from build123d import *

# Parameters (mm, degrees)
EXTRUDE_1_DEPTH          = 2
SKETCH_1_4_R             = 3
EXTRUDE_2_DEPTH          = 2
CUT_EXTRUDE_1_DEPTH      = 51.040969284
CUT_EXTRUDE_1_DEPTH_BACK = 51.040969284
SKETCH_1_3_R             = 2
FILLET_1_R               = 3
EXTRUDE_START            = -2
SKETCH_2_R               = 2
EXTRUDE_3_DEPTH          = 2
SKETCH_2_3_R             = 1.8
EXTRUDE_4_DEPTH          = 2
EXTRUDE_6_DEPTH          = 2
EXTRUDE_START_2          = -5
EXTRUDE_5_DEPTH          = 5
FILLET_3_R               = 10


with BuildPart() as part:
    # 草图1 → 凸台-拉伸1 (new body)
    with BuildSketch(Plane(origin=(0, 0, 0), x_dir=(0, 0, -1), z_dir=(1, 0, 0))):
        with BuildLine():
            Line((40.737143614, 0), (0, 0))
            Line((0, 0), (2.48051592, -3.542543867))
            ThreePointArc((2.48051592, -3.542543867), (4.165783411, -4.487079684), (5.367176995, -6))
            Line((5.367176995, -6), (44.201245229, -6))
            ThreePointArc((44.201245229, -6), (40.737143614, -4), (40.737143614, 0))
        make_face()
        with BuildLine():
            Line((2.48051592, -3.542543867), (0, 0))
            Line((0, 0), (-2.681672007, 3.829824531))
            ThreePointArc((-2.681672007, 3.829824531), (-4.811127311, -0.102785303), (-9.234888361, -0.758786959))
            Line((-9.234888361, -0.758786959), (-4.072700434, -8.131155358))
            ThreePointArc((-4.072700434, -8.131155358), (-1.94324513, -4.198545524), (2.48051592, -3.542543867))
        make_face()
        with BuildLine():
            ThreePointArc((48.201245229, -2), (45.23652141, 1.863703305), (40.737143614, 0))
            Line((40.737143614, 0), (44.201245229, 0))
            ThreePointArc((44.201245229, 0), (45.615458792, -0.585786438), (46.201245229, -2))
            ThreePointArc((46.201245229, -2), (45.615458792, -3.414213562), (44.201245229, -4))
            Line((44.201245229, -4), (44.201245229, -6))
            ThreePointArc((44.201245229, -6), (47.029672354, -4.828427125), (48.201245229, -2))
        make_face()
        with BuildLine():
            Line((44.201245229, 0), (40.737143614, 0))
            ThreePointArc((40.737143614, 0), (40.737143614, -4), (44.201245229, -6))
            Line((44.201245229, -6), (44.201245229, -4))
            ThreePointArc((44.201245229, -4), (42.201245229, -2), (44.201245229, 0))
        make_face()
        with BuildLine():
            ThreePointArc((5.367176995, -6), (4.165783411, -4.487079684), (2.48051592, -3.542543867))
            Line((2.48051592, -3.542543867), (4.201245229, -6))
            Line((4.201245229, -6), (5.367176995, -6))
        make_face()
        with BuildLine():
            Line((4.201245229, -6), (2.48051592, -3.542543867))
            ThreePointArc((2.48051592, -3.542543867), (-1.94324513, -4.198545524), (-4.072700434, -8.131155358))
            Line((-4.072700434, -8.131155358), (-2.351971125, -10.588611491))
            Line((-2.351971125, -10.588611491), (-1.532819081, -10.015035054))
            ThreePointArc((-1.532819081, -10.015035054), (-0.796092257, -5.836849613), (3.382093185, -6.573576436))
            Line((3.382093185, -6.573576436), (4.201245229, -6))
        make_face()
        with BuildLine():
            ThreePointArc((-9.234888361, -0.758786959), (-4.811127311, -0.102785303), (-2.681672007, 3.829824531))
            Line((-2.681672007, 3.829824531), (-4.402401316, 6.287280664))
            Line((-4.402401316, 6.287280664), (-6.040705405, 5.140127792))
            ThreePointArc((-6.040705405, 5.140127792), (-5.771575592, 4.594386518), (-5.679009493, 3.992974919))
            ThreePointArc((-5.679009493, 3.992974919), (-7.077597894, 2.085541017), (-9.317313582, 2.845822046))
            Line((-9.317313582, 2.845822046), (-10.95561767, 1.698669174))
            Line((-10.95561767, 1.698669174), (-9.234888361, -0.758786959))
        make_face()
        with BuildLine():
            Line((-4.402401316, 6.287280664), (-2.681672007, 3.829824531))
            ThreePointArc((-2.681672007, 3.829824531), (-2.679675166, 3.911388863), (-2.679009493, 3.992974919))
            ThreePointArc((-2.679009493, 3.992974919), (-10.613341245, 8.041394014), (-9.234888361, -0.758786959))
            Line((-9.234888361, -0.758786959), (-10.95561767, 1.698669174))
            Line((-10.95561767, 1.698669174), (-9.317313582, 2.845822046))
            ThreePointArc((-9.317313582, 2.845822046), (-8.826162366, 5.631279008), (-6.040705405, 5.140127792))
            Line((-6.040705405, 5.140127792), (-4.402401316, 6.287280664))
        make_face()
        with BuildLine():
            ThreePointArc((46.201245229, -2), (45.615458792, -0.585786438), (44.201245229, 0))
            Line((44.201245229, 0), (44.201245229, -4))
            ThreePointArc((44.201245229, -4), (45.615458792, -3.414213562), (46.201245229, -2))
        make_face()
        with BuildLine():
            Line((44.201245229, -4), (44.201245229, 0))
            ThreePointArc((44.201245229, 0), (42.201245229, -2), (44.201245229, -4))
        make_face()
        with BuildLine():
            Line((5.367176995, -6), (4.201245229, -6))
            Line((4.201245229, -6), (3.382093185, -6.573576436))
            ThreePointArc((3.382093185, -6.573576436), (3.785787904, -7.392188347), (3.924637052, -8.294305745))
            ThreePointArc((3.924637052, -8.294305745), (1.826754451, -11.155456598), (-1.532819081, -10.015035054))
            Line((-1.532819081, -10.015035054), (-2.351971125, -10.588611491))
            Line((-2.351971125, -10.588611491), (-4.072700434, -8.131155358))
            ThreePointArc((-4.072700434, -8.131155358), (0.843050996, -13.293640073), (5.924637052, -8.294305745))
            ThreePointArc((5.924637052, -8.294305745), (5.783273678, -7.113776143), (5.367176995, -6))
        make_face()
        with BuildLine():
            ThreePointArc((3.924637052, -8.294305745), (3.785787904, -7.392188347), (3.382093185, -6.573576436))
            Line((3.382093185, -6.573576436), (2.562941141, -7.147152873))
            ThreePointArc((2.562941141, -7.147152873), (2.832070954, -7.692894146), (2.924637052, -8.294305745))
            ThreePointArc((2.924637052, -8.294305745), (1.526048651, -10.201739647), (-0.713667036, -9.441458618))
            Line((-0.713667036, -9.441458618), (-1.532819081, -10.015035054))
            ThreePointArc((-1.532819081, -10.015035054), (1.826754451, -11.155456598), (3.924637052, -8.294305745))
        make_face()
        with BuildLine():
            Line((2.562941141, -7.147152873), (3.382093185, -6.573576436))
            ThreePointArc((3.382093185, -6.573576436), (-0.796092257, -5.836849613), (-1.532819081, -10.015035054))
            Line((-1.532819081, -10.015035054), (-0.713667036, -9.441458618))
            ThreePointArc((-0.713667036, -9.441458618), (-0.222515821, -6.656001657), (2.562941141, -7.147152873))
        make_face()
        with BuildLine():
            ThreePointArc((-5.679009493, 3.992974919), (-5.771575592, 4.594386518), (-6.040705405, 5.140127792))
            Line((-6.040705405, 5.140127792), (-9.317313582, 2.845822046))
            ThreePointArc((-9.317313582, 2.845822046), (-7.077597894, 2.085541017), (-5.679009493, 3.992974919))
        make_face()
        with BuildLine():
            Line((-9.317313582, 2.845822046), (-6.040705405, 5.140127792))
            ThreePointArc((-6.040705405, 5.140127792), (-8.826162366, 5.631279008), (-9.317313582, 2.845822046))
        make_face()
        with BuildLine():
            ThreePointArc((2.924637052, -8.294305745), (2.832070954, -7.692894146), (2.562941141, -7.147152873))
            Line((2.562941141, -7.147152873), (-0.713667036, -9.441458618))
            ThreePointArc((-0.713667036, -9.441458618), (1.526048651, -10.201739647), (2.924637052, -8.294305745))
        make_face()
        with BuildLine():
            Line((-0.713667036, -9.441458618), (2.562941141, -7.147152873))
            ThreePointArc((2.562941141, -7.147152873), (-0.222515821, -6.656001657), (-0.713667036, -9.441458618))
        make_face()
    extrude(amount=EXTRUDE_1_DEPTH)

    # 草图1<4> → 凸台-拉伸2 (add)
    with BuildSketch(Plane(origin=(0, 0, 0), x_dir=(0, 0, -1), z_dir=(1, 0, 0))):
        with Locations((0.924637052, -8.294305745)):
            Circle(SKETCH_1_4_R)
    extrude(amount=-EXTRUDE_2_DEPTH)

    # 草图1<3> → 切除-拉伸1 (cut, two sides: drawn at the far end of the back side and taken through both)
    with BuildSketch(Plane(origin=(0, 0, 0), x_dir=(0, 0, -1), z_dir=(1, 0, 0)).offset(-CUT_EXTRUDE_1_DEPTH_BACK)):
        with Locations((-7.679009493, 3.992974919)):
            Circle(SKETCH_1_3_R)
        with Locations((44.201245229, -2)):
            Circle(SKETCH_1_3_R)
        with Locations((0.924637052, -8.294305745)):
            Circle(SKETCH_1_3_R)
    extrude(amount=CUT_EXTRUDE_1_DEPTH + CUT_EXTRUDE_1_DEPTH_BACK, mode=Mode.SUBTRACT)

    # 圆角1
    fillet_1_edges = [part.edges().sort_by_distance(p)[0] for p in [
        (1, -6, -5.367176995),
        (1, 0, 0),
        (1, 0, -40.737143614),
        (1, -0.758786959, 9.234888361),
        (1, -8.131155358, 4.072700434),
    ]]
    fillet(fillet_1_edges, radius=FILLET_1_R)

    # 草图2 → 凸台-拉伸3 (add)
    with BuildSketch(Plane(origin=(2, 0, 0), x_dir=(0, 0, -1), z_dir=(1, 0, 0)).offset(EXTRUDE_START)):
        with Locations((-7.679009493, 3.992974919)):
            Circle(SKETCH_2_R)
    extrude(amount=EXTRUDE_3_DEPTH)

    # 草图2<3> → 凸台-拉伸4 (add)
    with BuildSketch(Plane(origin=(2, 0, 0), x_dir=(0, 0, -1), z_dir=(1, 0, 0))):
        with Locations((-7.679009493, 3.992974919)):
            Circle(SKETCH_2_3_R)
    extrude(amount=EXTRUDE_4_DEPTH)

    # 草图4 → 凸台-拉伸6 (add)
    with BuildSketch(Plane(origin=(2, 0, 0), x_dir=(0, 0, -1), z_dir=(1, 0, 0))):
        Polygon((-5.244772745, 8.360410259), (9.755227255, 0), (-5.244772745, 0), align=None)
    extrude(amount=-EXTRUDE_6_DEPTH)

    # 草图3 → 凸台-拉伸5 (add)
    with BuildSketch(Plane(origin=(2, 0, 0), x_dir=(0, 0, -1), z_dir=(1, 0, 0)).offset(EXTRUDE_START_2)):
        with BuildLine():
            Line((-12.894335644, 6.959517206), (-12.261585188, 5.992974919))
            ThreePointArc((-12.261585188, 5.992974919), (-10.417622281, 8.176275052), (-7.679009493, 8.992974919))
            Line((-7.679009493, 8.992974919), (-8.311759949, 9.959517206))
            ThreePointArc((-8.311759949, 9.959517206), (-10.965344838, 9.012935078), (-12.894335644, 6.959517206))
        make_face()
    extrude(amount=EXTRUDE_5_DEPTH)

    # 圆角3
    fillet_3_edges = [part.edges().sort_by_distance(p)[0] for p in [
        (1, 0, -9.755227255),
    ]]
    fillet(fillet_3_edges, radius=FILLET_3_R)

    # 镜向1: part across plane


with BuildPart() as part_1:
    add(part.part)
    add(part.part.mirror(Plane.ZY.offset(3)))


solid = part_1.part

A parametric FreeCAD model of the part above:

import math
import FreeCAD as App
import Part
import Sketcher
from FreeCAD import Vector
Q = App.Units.Quantity


def edges_at(feature, points):
    """Names of the edges that pass closest to the given points."""
    edges = feature.Shape.Edges
    near = lambda p: min(range(len(edges)), key=lambda i: edges[i].distToShape(Part.Vertex(*p))[0])
    return sorted({f"Edge{near(p) + 1}" for p in points})


def add_polygon(sketch, points):
    """Adds a closed chain of lines whose ends are joined by coincident constraints."""
    first, n = sketch.GeometryCount, len(points)
    for a, b in zip(points, points[1:] + points[:1]):
        sketch.addGeometry(Part.LineSegment(App.Vector(*a, 0), App.Vector(*b, 0)), False)
    for i in range(n):
        sketch.addConstraint(Sketcher.Constraint("Coincident", first + i, 2, first + (i + 1) % n, 1))

doc = App.newDocument("Part")
params = doc.addObject("Spreadsheet::Sheet", "Params")
for row, (alias, value) in enumerate([
    ("sketch1_radius", "5.000001 mm"),
    ("sketch1_radius2", "4 mm"),
    ("sketch1_length", "9 mm"),
    ("pad1_length", "2 mm"),
    ("sketch2_diameter", "6 mm"),
    ("pad2_length", "2 mm"),
    ("sketch3_diameter", "4 mm"),
    ("fillet_radius", "3 mm"),
    ("sketch4_diameter", "4 mm"),
    ("pad3_length", "2 mm"),
    ("sketch5_diameter", "3.6 mm"),
    ("pad4_length", "2 mm"),
    ("sketch6_height", "15 mm"),
    ("pad5_length", "2 mm"),
    ("sketch7_radius", "5 mm"),
    ("sketch7_radius2", "6 mm"),
    ("pad6_length", "5 mm"),
    ("fillet2_radius", "10 mm"),
], start=1):
    params.set(f"A{row}", alias)
    params.set(f"B{row}", "=" + value)
    params.setAlias(f"B{row}", alias)

body = doc.addObject("PartDesign::Body", "Body")

# Sketch on YZ plane
sketch1 = body.newObject("Sketcher::SketchObject", "Sketch")
sketch1.AttachmentSupport = (doc.getObject("YZ_Plane"), [""])
sketch1.MapMode = "FlatFace"
sketch1.addGeometry(Part.LineSegment(Vector(0, -40.737144, 0), Vector(0, 0, 0)), False)
sketch1.addGeometry(Part.LineSegment(Vector(0, 0, 0), Vector(3.829825, 2.681672, 0)), False)
sketch1.addGeometry(Part.ArcOfCircle(Part.Circle(Vector(3.992975, 7.679011, 0), Vector(0, 0, 1), 5.000001), math.radians(-91.869898), math.radians(-90)), False)
sketch1.addGeometry(Part.ArcOfCircle(Part.Circle(Vector(3.992975, 7.679009, 0), Vector(0, 0, 1), 5), math.radians(-90), math.radians(161.869898)), False)
sketch1.addGeometry(Part.LineSegment(Vector(-0.758787, 9.234888, 0), Vector(-8.131155, 4.0727, 0)), False)
sketch1.addGeometry(Part.ArcOfCircle(Part.Circle(Vector(-8.294306, -0.924637, 0), Vector(0, 0, 1), 5), math.radians(88.130102), math.radians(270)), False)
sketch1.addGeometry(Part.ArcOfCircle(Part.Circle(Vector(-8.294306, -0.924637, 0), Vector(0, 0, 1), 5), math.radians(-90), math.radians(-62.686356)), False)
sketch1.addGeometry(Part.LineSegment(Vector(-6, -5.367177, 0), Vector(-6, -44.201245, 0)), False)
sketch1.addGeometry(Part.ArcOfCircle(Part.Circle(Vector(-2, -44.201245, 0), Vector(0, 0, 1), 4), math.radians(180), math.radians(270)), False)
sketch1.addGeometry(Part.ArcOfCircle(Part.Circle(Vector(-2, -44.201245, 0), Vector(0, 0, 1), 4), math.radians(-90), math.radians(60)), False)
sketch1.addConstraint(Sketcher.Constraint("Coincident", 0, 2, 1, 1))
sketch1.addConstraint(Sketcher.Constraint("Coincident", 1, 2, 2, 1))
sketch1.addConstraint(Sketcher.Constraint("Tangent", 2, 2, 3, 1))
sketch1.addConstraint(Sketcher.Constraint("Coincident", 3, 2, 4, 1))
sketch1.addConstraint(Sketcher.Constraint("Coincident", 4, 2, 5, 1))
sketch1.addConstraint(Sketcher.Constraint("Tangent", 5, 2, 6, 1))
sketch1.addConstraint(Sketcher.Constraint("Coincident", 6, 2, 7, 1))
sketch1.addConstraint(Sketcher.Constraint("Tangent", 7, 2, 8, 1))
sketch1.addConstraint(Sketcher.Constraint("Tangent", 8, 2, 9, 1))
sketch1.addConstraint(Sketcher.Constraint("Coincident", 9, 2, 0, 1))
sketch1.addConstraint(Sketcher.Constraint("Vertical", 0))
sketch1.addConstraint(Sketcher.Constraint("Vertical", 7))
sketch1.addConstraint(Sketcher.Constraint("Coincident", 0, 2, -1, 1))
sketch1.addConstraint(Sketcher.Constraint("Equal", 2, 3))
sketch1.addConstraint(Sketcher.Constraint("Equal", 3, 5))
sketch1.addConstraint(Sketcher.Constraint("Equal", 5, 6))
sketch1.addConstraint(Sketcher.Constraint("Equal", 8, 9))
sketch1.addConstraint(Sketcher.Constraint("Parallel", 1, 4))
sketch1.addConstraint(Sketcher.Constraint("Vertical", 3, 3, 2, 2))
sketch1.addConstraint(Sketcher.Constraint("Vertical", 6, 3, 5, 2))
sketch1.addConstraint(Sketcher.Constraint("Vertical", 9, 3, 8, 2))
sketch1.addConstraint(Sketcher.Constraint("Radius", 2, 5.000001))
sketch1.addConstraint(Sketcher.Constraint("Radius", 8, 4.0))
sketch1.addConstraint(Sketcher.Constraint("Angle", 1, Q("35 deg")))
sketch1.addConstraint(Sketcher.Constraint("Distance", 4, 9.0))
sketch1.addConstraint(Sketcher.Constraint("DistanceX", 8, 3, -1, 1, 2.0))
sketch1.addConstraint(Sketcher.Constraint("DistanceY", 7, 2, 7, 1, 38.834068))
sketch1.addConstraint(Sketcher.Constraint("DistanceY", -1, 1, 4, 2, 4.0727))
sketch1.addConstraint(Sketcher.Constraint("DistanceY", 0, 1, 0, 2, 40.737144))
sketch1.addConstraint(Sketcher.Constraint("DistanceY", -1, 1, 2, 3, 7.679011))
sketch1.addConstraint(Sketcher.Constraint("DistanceX", 5, 3, 3, 3, 12.287281))
sketch1.setExpression("Constraints[21]", "Params.sketch1_radius")
sketch1.setExpression("Constraints[22]", "Params.sketch1_radius2")
sketch1.setExpression("Constraints[24]", "Params.sketch1_length")
pad1 = body.newObject("PartDesign::Pad", "Pad")
pad1.Profile = sketch1
pad1.setExpression("Length", "Params.pad1_length")

# Sketch on YZ plane
sketch2 = body.newObject("Sketcher::SketchObject", "Sketch001")
sketch2.AttachmentSupport = (doc.getObject("YZ_Plane"), [""])
sketch2.MapMode = "FlatFace"
sketch2.addGeometry(Part.Circle(Vector(-8.294306, -0.924637, 0), Vector(0, 0, 1), 3), False)
sketch2.addConstraint(Sketcher.Constraint("Diameter", 0, 6.0))
sketch2.addConstraint(Sketcher.Constraint("DistanceX", 0, 3, -1, 1, 8.294306))
sketch2.addConstraint(Sketcher.Constraint("DistanceY", 0, 3, -1, 1, 0.924637))
sketch2.setExpression("Constraints[0]", "Params.sketch2_diameter")
pad2 = body.newObject("PartDesign::Pad", "Pad001")
pad2.Profile = sketch2
pad2.setExpression("Length", "Params.pad2_length")
pad2.Reversed = True

# Sketch on YZ plane
sketch3 = body.newObject("Sketcher::SketchObject", "Sketch002")
sketch3.AttachmentSupport = (doc.getObject("YZ_Plane"), [""])
sketch3.MapMode = "FlatFace"
sketch3.addGeometry(Part.Circle(Vector(3.992975, 7.679009, 0), Vector(0, 0, 1), 2), False)
sketch3.addGeometry(Part.Circle(Vector(-2, -44.201245, 0), Vector(0, 0, 1), 2), False)
sketch3.addGeometry(Part.Circle(Vector(-8.294306, -0.924637, 0), Vector(0, 0, 1), 2), False)
sketch3.addConstraint(Sketcher.Constraint("Equal", 0, 1))
sketch3.addConstraint(Sketcher.Constraint("Equal", 1, 2))
sketch3.addConstraint(Sketcher.Constraint("Diameter", 0, 4.0))
sketch3.addConstraint(Sketcher.Constraint("DistanceX", 1, 3, -1, 1, 2.0))
sketch3.addConstraint(Sketcher.Constraint("DistanceY", -1, 1, 0, 3, 7.679009))
sketch3.addConstraint(Sketcher.Constraint("DistanceX", 2, 3, 0, 3, 12.287281))
sketch3.addConstraint(Sketcher.Constraint("DistanceY", 1, 3, 2, 3, 43.276608))
sketch3.addConstraint(Sketcher.Constraint("DistanceX", -1, 1, 0, 3, 3.992975))
sketch3.addConstraint(Sketcher.Constraint("DistanceY", 1, 3, -1, 1, 44.201245))
sketch3.setExpression("Constraints[2]", "Params.sketch3_diameter")
pocket1 = body.newObject("PartDesign::Pocket", "Pocket")
pocket1.Profile = sketch3
pocket1.Type = "ThroughAll"
pocket1.Midplane = True
doc.recompute()

fillet = body.newObject("PartDesign::Fillet", "Fillet")
fillet.Base = (pocket1, edges_at(pocket1, [
    (1, -6, -5.367),
    (1, 0, 0),
    (1, 0, -40.737),
    (1, -0.759, 9.235),
    (1, -8.131, 4.073),
]))
fillet.setExpression("Radius", "Params.fillet_radius")

# Sketch on YZ plane
sketch4 = body.newObject("Sketcher::SketchObject", "Sketch003")
sketch4.AttachmentSupport = (doc.getObject("YZ_Plane"), [""])
sketch4.MapMode = "FlatFace"
sketch4.addGeometry(Part.Circle(Vector(3.992975, 7.679009, 0), Vector(0, 0, 1), 2), False)
sketch4.addConstraint(Sketcher.Constraint("Diameter", 0, 4.0))
sketch4.addConstraint(Sketcher.Constraint("DistanceY", -1, 1, 0, 3, 7.679009))
sketch4.addConstraint(Sketcher.Constraint("DistanceX", -1, 1, 0, 3, 3.992975))
sketch4.setExpression("Constraints[0]", "Params.sketch4_diameter")
pad3 = body.newObject("PartDesign::Pad", "Pad002")
pad3.Profile = sketch4
pad3.setExpression("Length", "Params.pad3_length")

# Sketch on YZ plane
sketch5 = body.newObject("Sketcher::SketchObject", "Sketch004")
sketch5.AttachmentSupport = (doc.getObject("YZ_Plane"), [""])
sketch5.MapMode = "FlatFace"
sketch5.AttachmentOffset = App.Placement(Vector(0, 0, 2), App.Rotation())
sketch5.addGeometry(Part.Circle(Vector(3.992975, 7.679009, 0), Vector(0, 0, 1), 1.8), False)
sketch5.addConstraint(Sketcher.Constraint("Diameter", 0, 3.6))
sketch5.addConstraint(Sketcher.Constraint("DistanceY", -1, 1, 0, 3, 7.679009))
sketch5.addConstraint(Sketcher.Constraint("DistanceX", -1, 1, 0, 3, 3.992975))
sketch5.setExpression("Constraints[0]", "Params.sketch5_diameter")
pad4 = body.newObject("PartDesign::Pad", "Pad003")
pad4.Profile = sketch5
pad4.setExpression("Length", "Params.pad4_length")

# Sketch on YZ plane
sketch6 = body.newObject("Sketcher::SketchObject", "Sketch005")
sketch6.AttachmentSupport = (doc.getObject("YZ_Plane"), [""])
sketch6.MapMode = "FlatFace"
sketch6.AttachmentOffset = App.Placement(Vector(0, 0, 2), App.Rotation())
add_polygon(sketch6, [(0, -9.755227), (8.36041, 5.244773), (0, 5.244773)])  # lines 0-2
sketch6.addConstraint(Sketcher.Constraint("Horizontal", 1))
sketch6.addConstraint(Sketcher.Constraint("Vertical", 2))
sketch6.addConstraint(Sketcher.Constraint("PointOnObject", 1, 2, -2))
sketch6.addConstraint(Sketcher.Constraint("DistanceY", 2, 2, 2, 1, 15.0))
sketch6.addConstraint(Sketcher.Constraint("DistanceX", 1, 2, 1, 1, 8.36041))
sketch6.addConstraint(Sketcher.Constraint("DistanceY", -1, 1, 0, 2, 5.244773))
sketch6.setExpression("Constraints[6]", "Params.sketch6_height")
pad5 = body.newObject("PartDesign::Pad", "Pad004")
pad5.Profile = sketch6
pad5.setExpression("Length", "Params.pad5_length")
pad5.Reversed = True

# Sketch on YZ plane
sketch7 = body.newObject("Sketcher::SketchObject", "Sketch006")
sketch7.AttachmentSupport = (doc.getObject("YZ_Plane"), [""])
sketch7.MapMode = "FlatFace"
sketch7.AttachmentOffset = App.Placement(Vector(0, 0, -3), App.Rotation())
sketch7.addGeometry(Part.LineSegment(Vector(6.959517, 12.894336, 0), Vector(5.992975, 12.261585, 0)), False)
sketch7.addGeometry(Part.ArcOfCircle(Part.Circle(Vector(3.992975, 7.679009, 0), Vector(0, 0, 1), 5), math.radians(0), math.radians(66.421822)), False)
sketch7.addGeometry(Part.LineSegment(Vector(8.992975, 7.679009, 0), Vector(9.959517, 8.31176, 0)), False)
sketch7.addGeometry(Part.ArcOfCircle(Part.Circle(Vector(3.992975, 7.679009, 0), Vector(0, 0, 1), 6), math.radians(6.053578), math.radians(60.368243)), False)
sketch7.addConstraint(Sketcher.Constraint("Coincident", 0, 2, 1, 2))
sketch7.addConstraint(Sketcher.Constraint("Coincident", 1, 1, 2, 1))
sketch7.addConstraint(Sketcher.Constraint("Coincident", 2, 2, 3, 1))
sketch7.addConstraint(Sketcher.Constraint("Coincident", 3, 2, 0, 1))
sketch7.addConstraint(Sketcher.Constraint("Coincident", 3, 3, 1, 3))
sketch7.addConstraint(Sketcher.Constraint("Parallel", 0, 2))
sketch7.addConstraint(Sketcher.Constraint("Horizontal", 3, 3, 1, 1))
sketch7.addConstraint(Sketcher.Constraint("Equal", 0, 2))
sketch7.addConstraint(Sketcher.Constraint("Radius", 1, 5.0))
sketch7.addConstraint(Sketcher.Constraint("Radius", 3, 6.0))
sketch7.addConstraint(Sketcher.Constraint("DistanceX", 1, 3, 0, 2, 2.0))
sketch7.addConstraint(Sketcher.Constraint("DistanceY", -1, 1, 1, 3, 7.679009))
sketch7.addConstraint(Sketcher.Constraint("DistanceX", -1, 1, 1, 3, 3.992975))
sketch7.setExpression("Constraints[8]", "Params.sketch7_radius")
sketch7.setExpression("Constraints[9]", "Params.sketch7_radius2")
pad6 = body.newObject("PartDesign::Pad", "Pad005")
pad6.Profile = sketch7
pad6.setExpression("Length", "Params.pad6_length")
doc.recompute()

fillet2 = body.newObject("PartDesign::Fillet", "Fillet001")
fillet2.Base = (pad6, edges_at(pad6, [(1, 0, -9.755)]))
fillet2.setExpression("Radius", "Params.fillet2_radius")
body2 = doc.addObject("PartDesign::Body", "Body001")
doc.recompute()

body2.BaseFeature = body
doc.recompute()

mirroring = doc.addObject("Part::Mirroring", "Mirroring")
mirroring.Source = body
mirroring.Base = Vector(-3, 0, 0)
mirroring.Normal = Vector(-1, 0, 0)
body3 = doc.addObject("PartDesign::Body", "Body002")
body3.BaseFeature = mirroring
boolean = body2.newObject("PartDesign::Boolean", "Boolean")
boolean.Type = "Fuse"
boolean.addObjects([body3])
doc.recompute()
mirroring.Visibility = False

doc.recompute()
